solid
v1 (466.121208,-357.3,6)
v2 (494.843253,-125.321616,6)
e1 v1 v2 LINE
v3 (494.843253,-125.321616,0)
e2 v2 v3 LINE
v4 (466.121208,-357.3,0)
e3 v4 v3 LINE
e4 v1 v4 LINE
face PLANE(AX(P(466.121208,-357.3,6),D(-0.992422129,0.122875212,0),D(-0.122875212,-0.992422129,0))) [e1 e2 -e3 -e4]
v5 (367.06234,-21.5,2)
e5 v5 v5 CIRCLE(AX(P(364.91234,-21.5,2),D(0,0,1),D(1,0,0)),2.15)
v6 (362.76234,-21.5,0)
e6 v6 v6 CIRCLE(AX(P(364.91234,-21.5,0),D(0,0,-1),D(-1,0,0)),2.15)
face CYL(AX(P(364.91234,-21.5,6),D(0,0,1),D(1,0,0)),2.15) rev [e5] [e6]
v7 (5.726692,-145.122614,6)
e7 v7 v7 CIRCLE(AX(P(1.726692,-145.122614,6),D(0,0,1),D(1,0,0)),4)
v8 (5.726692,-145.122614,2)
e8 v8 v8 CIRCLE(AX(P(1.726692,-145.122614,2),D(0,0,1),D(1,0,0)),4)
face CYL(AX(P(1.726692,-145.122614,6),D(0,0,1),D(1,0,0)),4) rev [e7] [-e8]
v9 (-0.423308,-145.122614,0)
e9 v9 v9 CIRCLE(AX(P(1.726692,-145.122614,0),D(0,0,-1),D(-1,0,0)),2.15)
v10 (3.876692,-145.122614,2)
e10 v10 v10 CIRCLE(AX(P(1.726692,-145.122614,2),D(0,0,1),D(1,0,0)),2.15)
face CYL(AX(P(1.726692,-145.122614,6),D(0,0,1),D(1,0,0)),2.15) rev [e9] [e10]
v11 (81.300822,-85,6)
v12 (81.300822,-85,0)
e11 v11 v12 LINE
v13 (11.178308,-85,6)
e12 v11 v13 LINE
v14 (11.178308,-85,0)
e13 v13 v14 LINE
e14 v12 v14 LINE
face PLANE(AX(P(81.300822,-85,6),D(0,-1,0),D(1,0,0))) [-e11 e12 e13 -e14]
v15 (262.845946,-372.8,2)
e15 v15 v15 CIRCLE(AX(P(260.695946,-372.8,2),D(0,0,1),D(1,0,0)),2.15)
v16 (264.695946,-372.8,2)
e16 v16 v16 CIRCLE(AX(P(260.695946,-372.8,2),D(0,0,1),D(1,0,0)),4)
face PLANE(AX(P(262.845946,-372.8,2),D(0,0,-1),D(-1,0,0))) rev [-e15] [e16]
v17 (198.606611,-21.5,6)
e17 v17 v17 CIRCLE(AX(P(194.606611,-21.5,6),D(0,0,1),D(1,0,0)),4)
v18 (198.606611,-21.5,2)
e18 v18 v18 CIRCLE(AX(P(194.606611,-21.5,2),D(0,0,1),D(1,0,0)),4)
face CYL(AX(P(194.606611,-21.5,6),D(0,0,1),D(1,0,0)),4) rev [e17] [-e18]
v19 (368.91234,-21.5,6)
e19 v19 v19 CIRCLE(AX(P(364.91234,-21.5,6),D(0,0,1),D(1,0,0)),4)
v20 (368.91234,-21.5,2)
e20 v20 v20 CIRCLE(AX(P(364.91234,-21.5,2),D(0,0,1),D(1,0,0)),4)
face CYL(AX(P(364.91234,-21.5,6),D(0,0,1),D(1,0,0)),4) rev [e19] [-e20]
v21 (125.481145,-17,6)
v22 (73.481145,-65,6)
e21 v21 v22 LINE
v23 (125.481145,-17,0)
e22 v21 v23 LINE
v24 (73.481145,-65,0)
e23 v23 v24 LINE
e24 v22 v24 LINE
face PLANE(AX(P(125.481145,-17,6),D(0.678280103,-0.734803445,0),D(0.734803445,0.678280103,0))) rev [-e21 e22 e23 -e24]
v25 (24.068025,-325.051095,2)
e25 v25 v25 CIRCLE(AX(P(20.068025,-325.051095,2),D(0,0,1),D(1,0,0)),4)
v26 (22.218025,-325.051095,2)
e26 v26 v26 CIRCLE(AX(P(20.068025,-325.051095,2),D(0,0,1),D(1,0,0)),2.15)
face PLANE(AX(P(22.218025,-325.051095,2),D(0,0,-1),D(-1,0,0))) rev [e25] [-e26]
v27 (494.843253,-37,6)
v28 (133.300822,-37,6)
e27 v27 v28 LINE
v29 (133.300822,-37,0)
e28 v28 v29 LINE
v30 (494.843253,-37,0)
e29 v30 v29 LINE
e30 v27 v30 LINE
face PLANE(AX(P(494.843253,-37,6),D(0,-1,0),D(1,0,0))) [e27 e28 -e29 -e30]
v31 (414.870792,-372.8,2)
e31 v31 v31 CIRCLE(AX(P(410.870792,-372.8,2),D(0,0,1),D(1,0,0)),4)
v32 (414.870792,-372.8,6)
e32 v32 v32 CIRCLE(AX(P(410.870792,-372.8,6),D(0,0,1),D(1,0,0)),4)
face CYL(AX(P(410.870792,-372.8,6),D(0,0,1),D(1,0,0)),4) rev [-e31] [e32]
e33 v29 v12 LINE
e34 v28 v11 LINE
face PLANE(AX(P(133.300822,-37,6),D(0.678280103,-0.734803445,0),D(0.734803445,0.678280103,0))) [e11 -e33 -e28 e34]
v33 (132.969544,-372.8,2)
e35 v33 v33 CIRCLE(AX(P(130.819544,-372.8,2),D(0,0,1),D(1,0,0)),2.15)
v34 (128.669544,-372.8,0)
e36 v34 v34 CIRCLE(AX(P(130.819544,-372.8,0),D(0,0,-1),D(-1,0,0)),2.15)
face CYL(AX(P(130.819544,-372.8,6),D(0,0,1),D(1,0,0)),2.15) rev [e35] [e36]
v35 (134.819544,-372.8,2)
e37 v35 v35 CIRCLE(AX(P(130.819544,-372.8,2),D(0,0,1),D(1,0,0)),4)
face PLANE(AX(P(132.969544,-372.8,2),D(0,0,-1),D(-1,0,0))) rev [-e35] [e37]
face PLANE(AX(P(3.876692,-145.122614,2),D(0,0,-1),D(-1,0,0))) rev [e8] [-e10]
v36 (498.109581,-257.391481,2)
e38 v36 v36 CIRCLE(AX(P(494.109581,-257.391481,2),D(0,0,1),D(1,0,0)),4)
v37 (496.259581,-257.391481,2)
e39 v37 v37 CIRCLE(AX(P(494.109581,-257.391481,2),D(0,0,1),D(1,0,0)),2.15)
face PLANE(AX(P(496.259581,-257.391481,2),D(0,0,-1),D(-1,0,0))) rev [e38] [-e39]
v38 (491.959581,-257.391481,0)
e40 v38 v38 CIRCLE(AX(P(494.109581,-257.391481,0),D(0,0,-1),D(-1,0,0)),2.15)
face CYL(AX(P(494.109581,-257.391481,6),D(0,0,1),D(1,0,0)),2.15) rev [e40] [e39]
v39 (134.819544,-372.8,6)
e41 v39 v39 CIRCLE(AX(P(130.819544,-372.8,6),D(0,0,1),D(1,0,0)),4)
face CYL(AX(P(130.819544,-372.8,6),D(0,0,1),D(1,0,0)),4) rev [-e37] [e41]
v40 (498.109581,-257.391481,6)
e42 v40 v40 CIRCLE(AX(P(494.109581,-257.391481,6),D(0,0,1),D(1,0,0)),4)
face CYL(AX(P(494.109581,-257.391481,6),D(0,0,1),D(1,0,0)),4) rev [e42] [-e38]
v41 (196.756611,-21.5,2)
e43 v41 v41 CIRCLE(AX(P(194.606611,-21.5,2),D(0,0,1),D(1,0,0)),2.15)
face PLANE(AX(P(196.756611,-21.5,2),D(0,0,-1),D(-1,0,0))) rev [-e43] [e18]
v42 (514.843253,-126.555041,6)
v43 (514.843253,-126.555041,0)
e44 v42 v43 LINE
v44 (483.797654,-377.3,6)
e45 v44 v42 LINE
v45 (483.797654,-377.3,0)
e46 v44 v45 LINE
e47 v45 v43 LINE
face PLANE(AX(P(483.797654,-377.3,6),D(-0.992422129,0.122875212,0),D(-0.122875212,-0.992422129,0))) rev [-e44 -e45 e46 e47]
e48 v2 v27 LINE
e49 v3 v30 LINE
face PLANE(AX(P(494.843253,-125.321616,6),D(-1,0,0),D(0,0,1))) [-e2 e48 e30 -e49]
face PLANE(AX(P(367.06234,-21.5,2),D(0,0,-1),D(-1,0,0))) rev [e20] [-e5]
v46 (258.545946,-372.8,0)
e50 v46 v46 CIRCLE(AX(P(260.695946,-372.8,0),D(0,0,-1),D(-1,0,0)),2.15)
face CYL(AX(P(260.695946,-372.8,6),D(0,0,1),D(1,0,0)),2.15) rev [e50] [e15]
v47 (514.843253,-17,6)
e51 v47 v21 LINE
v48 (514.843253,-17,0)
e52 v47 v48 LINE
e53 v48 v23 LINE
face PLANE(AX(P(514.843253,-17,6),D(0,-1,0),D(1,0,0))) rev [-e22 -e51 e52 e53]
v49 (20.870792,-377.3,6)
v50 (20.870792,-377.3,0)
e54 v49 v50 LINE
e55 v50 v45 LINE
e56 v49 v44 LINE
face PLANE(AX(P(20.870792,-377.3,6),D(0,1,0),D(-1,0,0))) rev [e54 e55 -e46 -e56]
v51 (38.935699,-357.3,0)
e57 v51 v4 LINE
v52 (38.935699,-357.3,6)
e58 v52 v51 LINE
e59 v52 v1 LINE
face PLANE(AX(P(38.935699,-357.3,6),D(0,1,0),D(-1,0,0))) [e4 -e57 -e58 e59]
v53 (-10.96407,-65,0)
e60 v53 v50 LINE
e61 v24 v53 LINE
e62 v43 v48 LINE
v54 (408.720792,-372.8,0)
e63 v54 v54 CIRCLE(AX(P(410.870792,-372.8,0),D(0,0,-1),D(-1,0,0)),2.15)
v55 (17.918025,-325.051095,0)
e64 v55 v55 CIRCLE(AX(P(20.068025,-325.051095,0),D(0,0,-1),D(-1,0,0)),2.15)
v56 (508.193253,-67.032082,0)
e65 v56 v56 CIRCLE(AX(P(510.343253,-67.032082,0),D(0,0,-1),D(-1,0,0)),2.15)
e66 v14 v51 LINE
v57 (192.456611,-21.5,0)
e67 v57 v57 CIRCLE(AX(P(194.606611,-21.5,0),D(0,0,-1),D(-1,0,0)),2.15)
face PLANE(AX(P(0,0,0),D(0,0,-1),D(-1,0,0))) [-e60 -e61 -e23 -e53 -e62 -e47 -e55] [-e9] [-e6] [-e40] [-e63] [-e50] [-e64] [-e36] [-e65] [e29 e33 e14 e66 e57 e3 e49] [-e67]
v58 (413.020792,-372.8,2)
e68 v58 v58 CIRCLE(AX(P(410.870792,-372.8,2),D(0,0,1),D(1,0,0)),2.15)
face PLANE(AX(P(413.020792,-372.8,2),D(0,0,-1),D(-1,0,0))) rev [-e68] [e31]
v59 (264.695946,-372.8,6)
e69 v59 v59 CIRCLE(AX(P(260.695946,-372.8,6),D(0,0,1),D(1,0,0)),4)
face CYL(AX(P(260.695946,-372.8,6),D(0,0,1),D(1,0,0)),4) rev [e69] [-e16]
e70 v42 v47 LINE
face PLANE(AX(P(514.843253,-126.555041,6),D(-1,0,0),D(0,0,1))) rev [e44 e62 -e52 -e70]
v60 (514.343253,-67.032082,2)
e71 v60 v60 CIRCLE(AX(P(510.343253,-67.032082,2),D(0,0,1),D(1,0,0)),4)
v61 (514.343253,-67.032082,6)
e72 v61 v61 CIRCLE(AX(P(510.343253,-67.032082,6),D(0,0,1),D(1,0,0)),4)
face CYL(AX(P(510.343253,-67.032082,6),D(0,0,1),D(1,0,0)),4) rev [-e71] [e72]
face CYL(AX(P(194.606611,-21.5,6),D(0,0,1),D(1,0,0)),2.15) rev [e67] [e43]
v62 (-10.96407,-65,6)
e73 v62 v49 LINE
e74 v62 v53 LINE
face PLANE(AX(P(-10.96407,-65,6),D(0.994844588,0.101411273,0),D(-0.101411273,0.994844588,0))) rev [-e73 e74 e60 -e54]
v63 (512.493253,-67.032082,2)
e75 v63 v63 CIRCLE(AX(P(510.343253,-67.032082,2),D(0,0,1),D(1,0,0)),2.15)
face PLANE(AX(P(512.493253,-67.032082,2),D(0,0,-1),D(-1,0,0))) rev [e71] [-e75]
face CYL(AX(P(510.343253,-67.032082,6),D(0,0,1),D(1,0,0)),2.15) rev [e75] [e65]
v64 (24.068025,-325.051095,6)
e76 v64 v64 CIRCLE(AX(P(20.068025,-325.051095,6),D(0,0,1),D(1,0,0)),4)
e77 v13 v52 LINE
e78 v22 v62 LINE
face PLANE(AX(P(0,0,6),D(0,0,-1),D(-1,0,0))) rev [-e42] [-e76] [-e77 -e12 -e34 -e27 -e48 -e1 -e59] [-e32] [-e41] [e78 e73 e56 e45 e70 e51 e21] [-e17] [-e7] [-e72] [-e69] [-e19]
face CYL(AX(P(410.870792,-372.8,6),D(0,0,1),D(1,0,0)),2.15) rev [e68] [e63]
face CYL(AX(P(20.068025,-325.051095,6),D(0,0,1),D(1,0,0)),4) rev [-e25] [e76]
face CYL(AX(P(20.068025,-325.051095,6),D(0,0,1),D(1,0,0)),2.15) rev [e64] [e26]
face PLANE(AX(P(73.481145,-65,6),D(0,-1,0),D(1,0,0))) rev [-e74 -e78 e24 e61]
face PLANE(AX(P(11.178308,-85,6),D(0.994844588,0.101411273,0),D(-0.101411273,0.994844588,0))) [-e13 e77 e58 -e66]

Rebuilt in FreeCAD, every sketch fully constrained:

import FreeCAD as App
import Part
import Sketcher

V = App.Vector
Q = App.Units.Quantity

doc = App.newDocument("Part")
body = doc.addObject("PartDesign::Body", "Body")

# Sketch on XY plane
sketch1 = body.newObject("Sketcher::SketchObject", "Sketch")
sketch1.AttachmentSupport = (doc.getObject("XY_Plane"), [""])
sketch1.MapMode = "FlatFace"
sketch1.addGeometry(Part.LineSegment(V(-11, -65, 0), V(21, -377, 0)), False)
sketch1.addGeometry(Part.LineSegment(V(21, -377, 0), V(484, -377, 0)), False)
sketch1.addGeometry(Part.LineSegment(V(484, -377, 0), V(515, -127, 0)), False)
sketch1.addGeometry(Part.LineSegment(V(515, -127, 0), V(515, -17, 0)), False)
sketch1.addGeometry(Part.LineSegment(V(515, -17, 0), V(125, -17, 0)), False)
sketch1.addGeometry(Part.LineSegment(V(125, -17, 0), V(73, -65, 0)), False)
sketch1.addGeometry(Part.LineSegment(V(73, -65, 0), V(-11, -65, 0)), False)
sketch1.addGeometry(Part.LineSegment(V(39, -357, 0), V(11, -85, 0)), False)
sketch1.addGeometry(Part.LineSegment(V(11, -85, 0), V(81, -85, 0)), False)
sketch1.addGeometry(Part.LineSegment(V(81, -85, 0), V(133, -37, 0)), False)
sketch1.addGeometry(Part.LineSegment(V(133, -37, 0), V(495, -37, 0)), False)
sketch1.addGeometry(Part.LineSegment(V(495, -37, 0), V(495, -125, 0)), False)
sketch1.addGeometry(Part.LineSegment(V(495, -125, 0), V(466, -357, 0)), False)
sketch1.addGeometry(Part.LineSegment(V(466, -357, 0), V(39, -357, 0)), False)
sketch1.addConstraint(Sketcher.Constraint("Coincident", 0, 2, 1, 1))
sketch1.addConstraint(Sketcher.Constraint("Coincident", 1, 2, 2, 1))
sketch1.addConstraint(Sketcher.Constraint("Coincident", 2, 2, 3, 1))
sketch1.addConstraint(Sketcher.Constraint("Coincident", 3, 2, 4, 1))
sketch1.addConstraint(Sketcher.Constraint("Coincident", 4, 2, 5, 1))
sketch1.addConstraint(Sketcher.Constraint("Coincident", 5, 2, 6, 1))
sketch1.addConstraint(Sketcher.Constraint("Coincident", 6, 2, 0, 1))
sketch1.addConstraint(Sketcher.Constraint("Coincident", 7, 2, 8, 1))
sketch1.addConstraint(Sketcher.Constraint("Coincident", 8, 2, 9, 1))
sketch1.addConstraint(Sketcher.Constraint("Coincident", 9, 2, 10, 1))
sketch1.addConstraint(Sketcher.Constraint("Coincident", 10, 2, 11, 1))
sketch1.addConstraint(Sketcher.Constraint("Coincident", 11, 2, 12, 1))
sketch1.addConstraint(Sketcher.Constraint("Coincident", 12, 2, 13, 1))
sketch1.addConstraint(Sketcher.Constraint("Coincident", 13, 2, 7, 1))
sketch1.addConstraint(Sketcher.Constraint("Horizontal", 1))
sketch1.addConstraint(Sketcher.Constraint("Vertical", 3))
sketch1.addConstraint(Sketcher.Constraint("Horizontal", 4))
sketch1.addConstraint(Sketcher.Constraint("Horizontal", 6))
sketch1.addConstraint(Sketcher.Constraint("Horizontal", 8))
sketch1.addConstraint(Sketcher.Constraint("Horizontal", 10))
sketch1.addConstraint(Sketcher.Constraint("Vertical", 11))
sketch1.addConstraint(Sketcher.Constraint("Horizontal", 13))
sketch1.addConstraint(Sketcher.Constraint("Parallel", 0, 7))
sketch1.addConstraint(Sketcher.Constraint("Parallel", 5, 9))
sketch1.addConstraint(Sketcher.Constraint("Parallel", 2, 12))
sketch1.addConstraint(Sketcher.Constraint("Equal", 5, 9))
sketch1.addConstraint(Sketcher.Constraint("DistanceY", 3, 2, -1, 1, Q("17 mm")))
sketch1.addConstraint(Sketcher.Constraint("DistanceY", 5, 2, -1, 1, Q("65 mm")))
sketch1.addConstraint(Sketcher.Constraint("DistanceY", 7, 2, -1, 1, Q("85 mm")))
sketch1.addConstraint(Sketcher.Constraint("DistanceX", 5, 2, 4, 2, Q("52 mm")))
sketch1.addConstraint(Sketcher.Constraint("DistanceX", 10, 2, 3, 2, Q("20 mm")))
sketch1.addConstraint(Sketcher.Constraint("DistanceY", 1, 2, 12, 2, Q("20 mm")))
sketch1.addConstraint(Sketcher.Constraint("DistanceY", 0, 2, -1, 1, Q("377.3 mm")))
sketch1.addConstraint(Sketcher.Constraint("DistanceX", 1, 1, 1, 2, Q("462.926861 mm")))
sketch1.addConstraint(Sketcher.Constraint("DistanceX", 10, 1, 10, 2, Q("361.542431 mm")))
sketch1.addConstraint(Sketcher.Constraint("DistanceX", 13, 2, 13, 1, Q("427.185509 mm")))
sketch1.addConstraint(Sketcher.Constraint("DistanceY", 3, 1, 3, 2, Q("109.555041 mm")))
sketch1.addConstraint(Sketcher.Constraint("DistanceX", -1, 1, 13, 2, Q("38.935699 mm")))
sketch1.addConstraint(Sketcher.Constraint("DistanceX", 1, 2, 2, 2, Q("31.045599 mm")))
sketch1.addConstraint(Sketcher.Constraint("Distance", 0, Q("313.918379 mm")))
sketch1.addConstraint(Sketcher.Constraint("Distance", 12, Q("233.749709 mm")))
sketch1.addConstraint(Sketcher.Constraint("DistanceX", 4, 2, 4, 1, Q("389.362108 mm")))
pad1 = body.newObject("PartDesign::Pad", "Pad")
pad1.Profile = sketch1
pad1.Length = 6

# Sketch on XY plane
sketch2 = body.newObject("Sketcher::SketchObject", "Sketch001")
sketch2.AttachmentSupport = (doc.getObject("XY_Plane"), [""])
sketch2.MapMode = "FlatFace"
sketch2.AttachmentOffset = App.Placement(V(0, 0, 6), App.Rotation())
sketch2.addGeometry(Part.Circle(V(1.7, -145.1, 0), V(0, 0, 1), 2.1), False)
sketch2.addGeometry(Part.Circle(V(20.1, -325.1, 0), V(0, 0, 1), 2.1), False)
sketch2.addGeometry(Part.Circle(V(130.8, -372.8, 0), V(0, 0, 1), 2.1), False)
sketch2.addGeometry(Part.Circle(V(260.7, -372.8, 0), V(0, 0, 1), 2.1), False)
sketch2.addGeometry(Part.Circle(V(410.9, -372.8, 0), V(0, 0, 1), 2.1), False)
sketch2.addGeometry(Part.Circle(V(494.1, -257.4, 0), V(0, 0, 1), 2.1), False)
sketch2.addGeometry(Part.Circle(V(510.3, -67, 0), V(0, 0, 1), 2.1), False)
sketch2.addGeometry(Part.Circle(V(364.9, -21.5, 0), V(0, 0, 1), 2.1), False)
sketch2.addGeometry(Part.Circle(V(194.6, -21.5, 0), V(0, 0, 1), 2.1), False)
sketch2.addConstraint(Sketcher.Constraint("Equal", 0, 1))
sketch2.addConstraint(Sketcher.Constraint("Equal", 1, 2))
sketch2.addConstraint(Sketcher.Constraint("Equal", 2, 3))
sketch2.addConstraint(Sketcher.Constraint("Equal", 3, 4))
sketch2.addConstraint(Sketcher.Constraint("Equal", 4, 5))
sketch2.addConstraint(Sketcher.Constraint("Equal", 5, 6))
sketch2.addConstraint(Sketcher.Constraint("Equal", 6, 7))
sketch2.addConstraint(Sketcher.Constraint("Equal", 7, 8))
sketch2.addConstraint(Sketcher.Constraint("Horizontal", 2, 3, 3, 3))
sketch2.addConstraint(Sketcher.Constraint("Horizontal", 3, 3, 4, 3))
sketch2.addConstraint(Sketcher.Constraint("Horizontal", 7, 3, 8, 3))
sketch2.addConstraint(Sketcher.Constraint("Diameter", 0, Q("4.3 mm")))
sketch2.addConstraint(Sketcher.Constraint("DistanceY", 2, 3, -1, 1, Q("372.8 mm")))
sketch2.addConstraint(Sketcher.Constraint("DistanceY", 7, 3, -1, 1, Q("21.5 mm")))
sketch2.addConstraint(Sketcher.Constraint("DistanceX", 0, 3, 4, 3, Q("409.1441 mm")))
sketch2.addConstraint(Sketcher.Constraint("DistanceY", 5, 3, 6, 3, Q("190.359398 mm")))
sketch2.addConstraint(Sketcher.Constraint("DistanceX", -1, 1, 5, 3, Q("494.109581 mm")))
sketch2.addConstraint(Sketcher.Constraint("DistanceY", 5, 3, -1, 1, Q("257.391481 mm")))
sketch2.addConstraint(Sketcher.Constraint("DistanceX", -1, 1, 7, 3, Q("364.91234 mm")))
sketch2.addConstraint(Sketcher.Constraint("DistanceX", -1, 1, 8, 3, Q("194.606611 mm")))
sketch2.addConstraint(Sketcher.Constraint("DistanceY", 1, 3, 0, 3, Q("179.928481 mm")))
sketch2.addConstraint(Sketcher.Constraint("DistanceX", 1, 3, 2, 3, Q("110.751518 mm")))
sketch2.addConstraint(Sketcher.Constraint("DistanceX", 0, 3, 2, 3, Q("129.092852 mm")))
sketch2.addConstraint(Sketcher.Constraint("DistanceX", 1, 3, 3, 3, Q("240.627921 mm")))
sketch2.addConstraint(Sketcher.Constraint("DistanceX", 4, 3, 5, 3, Q("83.238789 mm")))
sketch2.addConstraint(Sketcher.Constraint("DistanceX", 4, 3, 6, 3, Q("99.472461 mm")))
sketch2.addConstraint(Sketcher.Constraint("DistanceY", 0, 3, 6, 3, Q("78.090532 mm")))
doc.recompute()
hole = body.newObject("PartDesign::Hole", "Hole")
hole.Profile = sketch2
hole.ThreadType = "None"
hole.Diameter = 4.3
hole.DepthType = "Dimension"
hole.Depth = 14
hole.DrillPoint = "Angled"
hole.DrillPointAngle = 118
hole.HoleCutType = "Counterbore"
hole.HoleCutDiameter = 8
hole.HoleCutDepth = 4

doc.recompute()
